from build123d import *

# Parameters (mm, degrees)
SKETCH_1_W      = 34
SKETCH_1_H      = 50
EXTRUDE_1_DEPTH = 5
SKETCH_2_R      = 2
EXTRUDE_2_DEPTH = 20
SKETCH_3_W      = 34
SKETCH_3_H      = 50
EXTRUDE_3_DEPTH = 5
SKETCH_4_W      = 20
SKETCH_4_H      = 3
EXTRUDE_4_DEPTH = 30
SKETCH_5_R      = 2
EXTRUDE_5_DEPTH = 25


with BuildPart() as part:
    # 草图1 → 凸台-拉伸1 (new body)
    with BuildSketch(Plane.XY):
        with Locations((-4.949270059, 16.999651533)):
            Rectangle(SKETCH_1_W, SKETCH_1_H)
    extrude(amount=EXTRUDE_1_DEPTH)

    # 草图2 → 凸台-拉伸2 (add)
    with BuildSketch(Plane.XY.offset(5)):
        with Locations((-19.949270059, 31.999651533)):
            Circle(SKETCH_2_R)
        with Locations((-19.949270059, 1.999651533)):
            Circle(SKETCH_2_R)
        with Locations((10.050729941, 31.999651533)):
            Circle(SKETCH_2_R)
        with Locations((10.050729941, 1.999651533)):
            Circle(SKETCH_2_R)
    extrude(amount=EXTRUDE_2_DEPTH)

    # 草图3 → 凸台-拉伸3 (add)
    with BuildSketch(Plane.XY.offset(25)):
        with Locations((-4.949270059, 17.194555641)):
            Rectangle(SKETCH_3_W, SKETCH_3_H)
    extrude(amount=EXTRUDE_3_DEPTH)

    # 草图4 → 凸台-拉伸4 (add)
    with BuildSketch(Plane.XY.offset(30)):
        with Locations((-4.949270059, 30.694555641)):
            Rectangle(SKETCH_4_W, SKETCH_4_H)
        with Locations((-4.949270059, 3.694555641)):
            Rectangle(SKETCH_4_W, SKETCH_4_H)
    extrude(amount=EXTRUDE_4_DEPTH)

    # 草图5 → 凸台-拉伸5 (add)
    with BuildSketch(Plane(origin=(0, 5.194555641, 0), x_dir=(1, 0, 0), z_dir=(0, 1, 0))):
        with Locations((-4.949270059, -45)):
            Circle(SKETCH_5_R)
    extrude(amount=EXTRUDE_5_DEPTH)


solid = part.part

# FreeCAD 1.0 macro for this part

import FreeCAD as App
import Part
import Sketcher

V = App.Vector

doc = App.newDocument("Part")
params = doc.addObject("Spreadsheet::Sheet", "Params")
for row, (alias, value) in enumerate([
    ("sketch1_width", "34 mm"),
    ("sketch1_height", "50 mm"),
    ("pad1_length", "5 mm"),
    ("sketch2_diameter", "4 mm"),
    ("pad2_length", "20 mm"),
    ("sketch3_width", "34 mm"),
    ("sketch3_height", "50 mm"),
    ("pad3_length", "5 mm"),
    ("sketch4_width", "20 mm"),
    ("sketch4_height", "3 mm"),
    ("pad4_length", "30 mm"),
    ("sketch5_diameter", "4 mm"),
    ("pad5_length", "25 mm"),
], start=1):
    params.set(f"A{row}", alias)
    params.set(f"B{row}", "=" + value)
    params.setAlias(f"B{row}", alias)

body = doc.addObject("PartDesign::Body", "Body")

sketch1 = doc.addObject("Sketcher::SketchObject", "Sketch")
body.addObject(sketch1)
sketch1.AttachmentSupport = (doc.XY_Plane, [""])
sketch1.MapMode = "FlatFace"
sketch1.addGeometry(Part.LineSegment(V(-22, 42, 0), V(-22, -8, 0)), False)
sketch1.addGeometry(Part.LineSegment(V(-22, -8, 0), V(12, -8, 0)), False)
sketch1.addGeometry(Part.LineSegment(V(12, -8, 0), V(12, 42, 0)), False)
sketch1.addGeometry(Part.LineSegment(V(12, 42, 0), V(-22, 42, 0)), False)
sketch1.addConstraint(Sketcher.Constraint("Coincident", 0, 2, 1, 1))
sketch1.addConstraint(Sketcher.Constraint("Coincident", 1, 2, 2, 1))
sketch1.addConstraint(Sketcher.Constraint("Coincident", 2, 2, 3, 1))
sketch1.addConstraint(Sketcher.Constraint("Coincident", 3, 2, 0, 1))
sketch1.addConstraint(Sketcher.Constraint("Vertical", 0))
sketch1.addConstraint(Sketcher.Constraint("Horizontal", 1))
sketch1.addConstraint(Sketcher.Constraint("Vertical", 2))
sketch1.addConstraint(Sketcher.Constraint("Horizontal", 3))
sketch1.addConstraint(Sketcher.Constraint("DistanceX", 1, 1, 1, 2, 34.0))
sketch1.addConstraint(Sketcher.Constraint("DistanceY", 0, 2, 0, 1, 50.0))
sketch1.addConstraint(Sketcher.Constraint("DistanceX", 0, 2, -1, 1, 21.94927))
sketch1.addConstraint(Sketcher.Constraint("DistanceY", 0, 2, -1, 1, 8.000348))
sketch1.setExpression("Constraints[8]", "Params.sketch1_width")
sketch1.setExpression("Constraints[9]", "Params.sketch1_height")
pad1 = doc.addObject("PartDesign::Pad", "Pad")
body.addObject(pad1)
pad1.Profile = sketch1
pad1.setExpression("Length", "Params.pad1_length")

sketch2 = doc.addObject("Sketcher::SketchObject", "Sketch001")
body.addObject(sketch2)
sketch2.AttachmentSupport = (doc.XY_Plane, [""])
sketch2.MapMode = "FlatFace"
sketch2.AttachmentOffset = App.Placement(V(0, 0, 5), App.Rotation())
sketch2.addGeometry(Part.Circle(V(-19.9, 32, 0), V(0, 0, 1), 2), False)
sketch2.addGeometry(Part.Circle(V(-19.9, 2, 0), V(0, 0, 1), 2), False)
sketch2.addGeometry(Part.Circle(V(10.1, 32, 0), V(0, 0, 1), 2), False)
sketch2.addGeometry(Part.Circle(V(10.1, 2, 0), V(0, 0, 1), 2), False)
sketch2.addConstraint(Sketcher.Constraint("Equal", 0, 1))
sketch2.addConstraint(Sketcher.Constraint("Equal", 1, 2))
sketch2.addConstraint(Sketcher.Constraint("Equal", 2, 3))
sketch2.addConstraint(Sketcher.Constraint("Horizontal", 0, 3, 2, 3))
sketch2.addConstraint(Sketcher.Constraint("Horizontal", 1, 3, 3, 3))
sketch2.addConstraint(Sketcher.Constraint("Vertical", 0, 3, 1, 3))
sketch2.addConstraint(Sketcher.Constraint("Vertical", 2, 3, 3, 3))
sketch2.addConstraint(Sketcher.Constraint("Diameter", 0, 4.0))
sketch2.addConstraint(Sketcher.Constraint("DistanceY", 1, 3, 0, 3, 30.0))
sketch2.addConstraint(Sketcher.Constraint("DistanceX", 0, 3, 2, 3, 30.0))
sketch2.addConstraint(Sketcher.Constraint("DistanceX", 0, 3, -1, 1, 19.94927))
sketch2.addConstraint(Sketcher.Constraint("DistanceY", -1, 1, 0, 3, 31.999652))
sketch2.setExpression("Constraints[7]", "Params.sketch2_diameter")
pad2 = doc.addObject("PartDesign::Pad", "Pad001")
body.addObject(pad2)
pad2.Profile = sketch2
pad2.setExpression("Length", "Params.pad2_length")

sketch3 = doc.addObject("Sketcher::SketchObject", "Sketch002")
body.addObject(sketch3)
sketch3.AttachmentSupport = (doc.XY_Plane, [""])
sketch3.MapMode = "FlatFace"
sketch3.AttachmentOffset = App.Placement(V(0, 0, 25), App.Rotation())
sketch3.addGeometry(Part.LineSegment(V(-22, 42, 0), V(-22, -8, 0)), False)
sketch3.addGeometry(Part.LineSegment(V(-22, -8, 0), V(12, -8, 0)), False)
sketch3.addGeometry(Part.LineSegment(V(12, -8, 0), V(12, 42, 0)), False)
sketch3.addGeometry(Part.LineSegment(V(12, 42, 0), V(-22, 42, 0)), False)
sketch3.addConstraint(Sketcher.Constraint("Coincident", 0, 2, 1, 1))
sketch3.addConstraint(Sketcher.Constraint("Coincident", 1, 2, 2, 1))
sketch3.addConstraint(Sketcher.Constraint("Coincident", 2, 2, 3, 1))
sketch3.addConstraint(Sketcher.Constraint("Coincident", 3, 2, 0, 1))
sketch3.addConstraint(Sketcher.Constraint("Vertical", 0))
sketch3.addConstraint(Sketcher.Constraint("Horizontal", 1))
sketch3.addConstraint(Sketcher.Constraint("Vertical", 2))
sketch3.addConstraint(Sketcher.Constraint("Horizontal", 3))
sketch3.addConstraint(Sketcher.Constraint("DistanceX", 1, 1, 1, 2, 34.0))
sketch3.addConstraint(Sketcher.Constraint("DistanceY", 0, 2, 0, 1, 50.0))
sketch3.addConstraint(Sketcher.Constraint("DistanceX", 0, 2, -1, 1, 21.94927))
sketch3.addConstraint(Sketcher.Constraint("DistanceY", 0, 2, -1, 1, 7.805444))
sketch3.setExpression("Constraints[8]", "Params.sketch3_width")
sketch3.setExpression("Constraints[9]", "Params.sketch3_height")
pad3 = doc.addObject("PartDesign::Pad", "Pad002")
body.addObject(pad3)
pad3.Profile = sketch3
pad3.setExpression("Length", "Params.pad3_length")

sketch4 = doc.addObject("Sketcher::SketchObject", "Sketch003")
body.addObject(sketch4)
sketch4.AttachmentSupport = (doc.XY_Plane, [""])
sketch4.MapMode = "FlatFace"
sketch4.AttachmentOffset = App.Placement(V(0, 0, 30), App.Rotation())
sketch4.addGeometry(Part.LineSegment(V(-14.9, 32.2, 0), V(-14.9, 29.2, 0)), False)
sketch4.addGeometry(Part.LineSegment(V(-14.9, 29.2, 0), V(5.1, 29.2, 0)), False)
sketch4.addGeometry(Part.LineSegment(V(5.1, 29.2, 0), V(5.1, 32.2, 0)), False)
sketch4.addGeometry(Part.LineSegment(V(5.1, 32.2, 0), V(-14.9, 32.2, 0)), False)
sketch4.addGeometry(Part.LineSegment(V(-14.9, 5.2, 0), V(-14.9, 2.2, 0)), False)
sketch4.addGeometry(Part.LineSegment(V(-14.9, 2.2, 0), V(5.1, 2.2, 0)), False)
sketch4.addGeometry(Part.LineSegment(V(5.1, 2.2, 0), V(5.1, 5.2, 0)), False)
sketch4.addGeometry(Part.LineSegment(V(5.1, 5.2, 0), V(-14.9, 5.2, 0)), False)
sketch4.addConstraint(Sketcher.Constraint("Coincident", 0, 2, 1, 1))
sketch4.addConstraint(Sketcher.Constraint("Coincident", 1, 2, 2, 1))
sketch4.addConstraint(Sketcher.Constraint("Coincident", 2, 2, 3, 1))
sketch4.addConstraint(Sketcher.Constraint("Coincident", 3, 2, 0, 1))
sketch4.addConstraint(Sketcher.Constraint("Coincident", 4, 2, 5, 1))
sketch4.addConstraint(Sketcher.Constraint("Coincident", 5, 2, 6, 1))
sketch4.addConstraint(Sketcher.Constraint("Coincident", 6, 2, 7, 1))
sketch4.addConstraint(Sketcher.Constraint("Coincident", 7, 2, 4, 1))
sketch4.addConstraint(Sketcher.Constraint("Vertical", 0))
sketch4.addConstraint(Sketcher.Constraint("Horizontal", 1))
sketch4.addConstraint(Sketcher.Constraint("Vertical", 2))
sketch4.addConstraint(Sketcher.Constraint("Horizontal", 3))
sketch4.addConstraint(Sketcher.Constraint("Vertical", 4))
sketch4.addConstraint(Sketcher.Constraint("Horizontal", 5))
sketch4.addConstraint(Sketcher.Constraint("Vertical", 6))
sketch4.addConstraint(Sketcher.Constraint("Horizontal", 7))
sketch4.addConstraint(Sketcher.Constraint("Vertical", 3, 2, 4, 2))
sketch4.addConstraint(Sketcher.Constraint("Vertical", 2, 2, 5, 2))
sketch4.addConstraint(Sketcher.Constraint("Equal", 2, 4))
sketch4.addConstraint(Sketcher.Constraint("DistanceX", 1, 1, 1, 2, 20.0))
sketch4.addConstraint(Sketcher.Constraint("DistanceY", 0, 2, 0, 1, 3.0))
sketch4.addConstraint(Sketcher.Constraint("DistanceY", 4, 2, 0, 2, 27.0))
sketch4.addConstraint(Sketcher.Constraint("DistanceX", 0, 2, -1, 1, 14.94927))
sketch4.addConstraint(Sketcher.Constraint("DistanceY", -1, 1, 0, 2, 29.194556))
sketch4.setExpression("Constraints[19]", "Params.sketch4_width")
sketch4.setExpression("Constraints[20]", "Params.sketch4_height")
pad4 = doc.addObject("PartDesign::Pad", "Pad003")
body.addObject(pad4)
pad4.Profile = sketch4
pad4.setExpression("Length", "Params.pad4_length")

sketch5 = doc.addObject("Sketcher::SketchObject", "Sketch004")
body.addObject(sketch5)
sketch5.AttachmentSupport = (doc.XZ_Plane, [""])
sketch5.MapMode = "FlatFace"
sketch5.AttachmentOffset = App.Placement(V(0, 0, -5.194556), App.Rotation())
sketch5.addGeometry(Part.Circle(V(-4.9, 45, 0), V(0, 0, 1), 2), False)
sketch5.addConstraint(Sketcher.Constraint("Diameter", 0, 4.0))
sketch5.addConstraint(Sketcher.Constraint("DistanceY", -1, 1, 0, 3, 45.0))
sketch5.addConstraint(Sketcher.Constraint("DistanceX", 0, 3, -1, 1, 4.94927))
sketch5.setExpression("Constraints[0]", "Params.sketch5_diameter")
pad5 = doc.addObject("PartDesign::Pad", "Pad004")
body.addObject(pad5)
pad5.Profile = sketch5
pad5.setExpression("Length", "Params.pad5_length")
pad5.Reversed = True

doc.recompute()
